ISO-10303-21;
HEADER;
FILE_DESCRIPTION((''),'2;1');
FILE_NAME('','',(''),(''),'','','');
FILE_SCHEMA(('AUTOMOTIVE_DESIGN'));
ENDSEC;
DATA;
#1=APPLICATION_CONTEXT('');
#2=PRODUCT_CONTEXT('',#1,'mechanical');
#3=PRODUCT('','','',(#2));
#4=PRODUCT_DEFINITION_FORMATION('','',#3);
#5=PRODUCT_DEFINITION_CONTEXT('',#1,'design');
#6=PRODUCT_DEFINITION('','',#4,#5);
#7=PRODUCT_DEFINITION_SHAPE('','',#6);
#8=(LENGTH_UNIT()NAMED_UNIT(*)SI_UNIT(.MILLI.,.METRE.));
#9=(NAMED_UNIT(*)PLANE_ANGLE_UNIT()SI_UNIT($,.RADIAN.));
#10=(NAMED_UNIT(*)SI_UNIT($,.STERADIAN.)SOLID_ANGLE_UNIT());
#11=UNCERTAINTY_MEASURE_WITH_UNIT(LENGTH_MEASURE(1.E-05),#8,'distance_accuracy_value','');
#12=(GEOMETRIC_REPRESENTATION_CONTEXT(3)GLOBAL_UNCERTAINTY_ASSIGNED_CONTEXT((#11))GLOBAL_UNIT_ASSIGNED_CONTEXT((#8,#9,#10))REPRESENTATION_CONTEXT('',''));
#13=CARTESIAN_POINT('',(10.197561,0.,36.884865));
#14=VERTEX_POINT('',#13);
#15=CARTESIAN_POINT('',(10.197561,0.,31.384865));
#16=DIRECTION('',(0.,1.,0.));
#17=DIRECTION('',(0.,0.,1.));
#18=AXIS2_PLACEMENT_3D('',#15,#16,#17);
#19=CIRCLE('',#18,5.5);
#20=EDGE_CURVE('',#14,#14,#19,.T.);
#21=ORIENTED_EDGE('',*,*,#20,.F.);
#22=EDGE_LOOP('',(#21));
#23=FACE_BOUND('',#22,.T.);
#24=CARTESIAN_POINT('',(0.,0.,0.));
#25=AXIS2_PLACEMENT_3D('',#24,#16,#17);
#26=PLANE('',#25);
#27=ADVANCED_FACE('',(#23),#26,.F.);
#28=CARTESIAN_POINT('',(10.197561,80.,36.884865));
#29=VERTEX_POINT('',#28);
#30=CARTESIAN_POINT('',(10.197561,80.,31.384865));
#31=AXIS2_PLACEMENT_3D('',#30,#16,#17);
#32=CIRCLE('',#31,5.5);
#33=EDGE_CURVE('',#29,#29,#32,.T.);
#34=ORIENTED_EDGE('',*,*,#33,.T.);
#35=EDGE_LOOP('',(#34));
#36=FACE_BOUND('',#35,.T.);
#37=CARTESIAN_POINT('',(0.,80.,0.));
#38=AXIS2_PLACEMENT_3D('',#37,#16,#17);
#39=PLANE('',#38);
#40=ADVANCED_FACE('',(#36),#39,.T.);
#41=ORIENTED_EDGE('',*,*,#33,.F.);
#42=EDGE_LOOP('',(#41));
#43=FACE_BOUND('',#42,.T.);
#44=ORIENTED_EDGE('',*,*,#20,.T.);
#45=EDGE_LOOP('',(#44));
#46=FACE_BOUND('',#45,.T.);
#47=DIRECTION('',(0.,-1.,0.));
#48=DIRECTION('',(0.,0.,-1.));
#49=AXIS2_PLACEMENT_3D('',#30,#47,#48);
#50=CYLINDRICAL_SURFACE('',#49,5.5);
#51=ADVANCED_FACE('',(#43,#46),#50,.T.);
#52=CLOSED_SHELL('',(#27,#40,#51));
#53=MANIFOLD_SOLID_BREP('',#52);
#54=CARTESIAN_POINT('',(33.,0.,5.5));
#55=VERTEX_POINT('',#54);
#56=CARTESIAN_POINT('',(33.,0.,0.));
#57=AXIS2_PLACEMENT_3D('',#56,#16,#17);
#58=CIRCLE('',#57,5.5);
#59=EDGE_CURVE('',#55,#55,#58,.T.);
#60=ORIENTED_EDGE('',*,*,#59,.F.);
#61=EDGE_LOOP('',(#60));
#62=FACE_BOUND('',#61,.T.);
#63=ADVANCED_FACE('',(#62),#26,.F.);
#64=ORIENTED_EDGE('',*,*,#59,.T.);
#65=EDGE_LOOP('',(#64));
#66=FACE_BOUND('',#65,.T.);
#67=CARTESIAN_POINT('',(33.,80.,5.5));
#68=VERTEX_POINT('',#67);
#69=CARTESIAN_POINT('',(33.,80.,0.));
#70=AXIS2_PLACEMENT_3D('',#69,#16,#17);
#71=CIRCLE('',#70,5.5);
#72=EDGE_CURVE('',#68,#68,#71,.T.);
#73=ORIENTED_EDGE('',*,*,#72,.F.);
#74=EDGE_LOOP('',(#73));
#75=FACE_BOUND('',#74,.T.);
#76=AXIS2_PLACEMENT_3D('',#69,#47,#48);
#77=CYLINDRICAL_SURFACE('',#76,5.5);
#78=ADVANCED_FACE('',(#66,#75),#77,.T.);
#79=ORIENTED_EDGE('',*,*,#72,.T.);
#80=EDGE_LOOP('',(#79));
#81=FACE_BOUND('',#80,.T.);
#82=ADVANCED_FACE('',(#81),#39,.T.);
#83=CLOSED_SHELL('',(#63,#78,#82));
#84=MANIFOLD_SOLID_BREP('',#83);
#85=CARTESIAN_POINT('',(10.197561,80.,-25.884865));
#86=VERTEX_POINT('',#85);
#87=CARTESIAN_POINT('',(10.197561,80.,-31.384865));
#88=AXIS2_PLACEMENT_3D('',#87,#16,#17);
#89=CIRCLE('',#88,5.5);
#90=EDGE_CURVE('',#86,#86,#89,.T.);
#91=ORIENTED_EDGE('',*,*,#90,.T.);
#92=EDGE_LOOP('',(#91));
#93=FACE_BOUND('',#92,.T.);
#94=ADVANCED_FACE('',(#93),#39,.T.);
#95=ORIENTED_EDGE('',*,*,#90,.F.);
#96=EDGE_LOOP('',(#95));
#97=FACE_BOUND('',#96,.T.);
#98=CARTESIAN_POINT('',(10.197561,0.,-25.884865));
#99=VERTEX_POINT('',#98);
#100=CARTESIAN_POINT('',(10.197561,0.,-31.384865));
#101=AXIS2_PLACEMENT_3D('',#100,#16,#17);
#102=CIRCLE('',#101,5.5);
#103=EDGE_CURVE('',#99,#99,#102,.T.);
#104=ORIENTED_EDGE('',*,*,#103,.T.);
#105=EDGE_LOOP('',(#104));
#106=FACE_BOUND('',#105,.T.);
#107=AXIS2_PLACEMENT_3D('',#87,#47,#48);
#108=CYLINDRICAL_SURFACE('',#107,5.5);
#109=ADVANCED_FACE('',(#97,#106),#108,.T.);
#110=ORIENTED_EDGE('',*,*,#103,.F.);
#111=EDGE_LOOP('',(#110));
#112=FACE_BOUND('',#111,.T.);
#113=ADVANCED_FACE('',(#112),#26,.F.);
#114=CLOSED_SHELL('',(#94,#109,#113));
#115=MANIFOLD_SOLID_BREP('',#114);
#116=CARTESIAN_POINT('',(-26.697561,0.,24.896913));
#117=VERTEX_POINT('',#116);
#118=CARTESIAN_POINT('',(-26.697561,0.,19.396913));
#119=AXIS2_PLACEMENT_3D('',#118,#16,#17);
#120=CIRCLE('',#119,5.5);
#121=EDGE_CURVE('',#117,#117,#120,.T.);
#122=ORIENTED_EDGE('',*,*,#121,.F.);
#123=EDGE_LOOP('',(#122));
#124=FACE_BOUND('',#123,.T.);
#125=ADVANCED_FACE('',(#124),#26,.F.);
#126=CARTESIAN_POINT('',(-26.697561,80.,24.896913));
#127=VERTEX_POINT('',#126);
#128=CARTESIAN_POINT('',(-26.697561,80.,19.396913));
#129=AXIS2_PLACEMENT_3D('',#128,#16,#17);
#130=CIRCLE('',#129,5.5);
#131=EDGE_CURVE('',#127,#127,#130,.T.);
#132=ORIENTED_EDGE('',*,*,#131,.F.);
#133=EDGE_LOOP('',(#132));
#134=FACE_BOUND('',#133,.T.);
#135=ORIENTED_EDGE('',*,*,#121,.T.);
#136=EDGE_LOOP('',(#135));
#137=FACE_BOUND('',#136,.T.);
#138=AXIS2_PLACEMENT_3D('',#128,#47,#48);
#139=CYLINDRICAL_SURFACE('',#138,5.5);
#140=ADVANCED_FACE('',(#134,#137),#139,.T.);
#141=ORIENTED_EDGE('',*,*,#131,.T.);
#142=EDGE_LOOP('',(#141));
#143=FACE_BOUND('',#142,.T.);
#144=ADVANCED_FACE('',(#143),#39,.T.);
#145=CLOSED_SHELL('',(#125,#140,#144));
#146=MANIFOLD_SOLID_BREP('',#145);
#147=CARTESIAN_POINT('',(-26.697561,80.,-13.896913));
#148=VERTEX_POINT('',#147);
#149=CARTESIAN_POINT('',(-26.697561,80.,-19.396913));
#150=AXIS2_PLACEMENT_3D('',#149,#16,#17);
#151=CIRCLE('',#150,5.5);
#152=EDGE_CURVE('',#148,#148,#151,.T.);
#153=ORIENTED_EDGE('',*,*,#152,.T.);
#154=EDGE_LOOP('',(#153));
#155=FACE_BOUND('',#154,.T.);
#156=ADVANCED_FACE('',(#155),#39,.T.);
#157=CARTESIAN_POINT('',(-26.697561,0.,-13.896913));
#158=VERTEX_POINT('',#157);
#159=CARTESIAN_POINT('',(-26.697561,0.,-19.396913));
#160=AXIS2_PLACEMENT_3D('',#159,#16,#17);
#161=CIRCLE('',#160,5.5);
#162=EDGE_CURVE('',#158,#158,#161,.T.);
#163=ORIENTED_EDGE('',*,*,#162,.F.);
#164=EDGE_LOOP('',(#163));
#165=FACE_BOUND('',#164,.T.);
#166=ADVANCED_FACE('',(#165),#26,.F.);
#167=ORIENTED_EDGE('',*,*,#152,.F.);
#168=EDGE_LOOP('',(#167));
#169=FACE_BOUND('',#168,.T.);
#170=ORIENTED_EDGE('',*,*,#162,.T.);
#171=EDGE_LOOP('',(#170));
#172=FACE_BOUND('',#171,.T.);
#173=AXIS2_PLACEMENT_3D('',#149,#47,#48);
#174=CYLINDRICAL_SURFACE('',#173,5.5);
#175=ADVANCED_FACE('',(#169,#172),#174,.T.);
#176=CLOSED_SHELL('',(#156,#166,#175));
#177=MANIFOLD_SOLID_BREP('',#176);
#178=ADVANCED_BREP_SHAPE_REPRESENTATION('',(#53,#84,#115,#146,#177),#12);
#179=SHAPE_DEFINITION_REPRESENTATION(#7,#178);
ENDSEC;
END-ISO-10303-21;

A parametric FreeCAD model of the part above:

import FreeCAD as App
import Part
import Sketcher

doc = App.newDocument("Part")
body = doc.addObject("PartDesign::Body", "Body")

sketch1 = body.newObject("Sketcher::SketchObject", "Sketch")
sketch1.AttachmentSupport = (doc.getObject("XZ_Plane"), [""])
sketch1.MapMode = "FlatFace"
sketch1.addGeometry(Part.Circle(App.Vector(33, 0, 0), App.Vector(0, 0, 1), 6), False)
sketch1.addConstraint(Sketcher.Constraint("PointOnObject", 0, 3, -1))
sketch1.addConstraint(Sketcher.Constraint("Diameter", 0, 11.0))
sketch1.addConstraint(Sketcher.Constraint("DistanceX", -1, 1, 0, 3, 33.0))
pad1 = body.newObject("PartDesign::Pad", "Pad")
pad1.Profile = sketch1
pad1.Length = 80
pad1.Reversed = True
body2 = doc.addObject("PartDesign::Body", "Body001")

sketch2 = body2.newObject("Sketcher::SketchObject", "Sketch001")
sketch2.AttachmentSupport = (doc.getObject("XZ_Plane001"), [""])
sketch2.MapMode = "FlatFace"
sketch2.addGeometry(Part.Circle(App.Vector(10, 31, 0), App.Vector(0, 0, 1), 6), False)
sketch2.addConstraint(Sketcher.Constraint("Diameter", 0, 11.0))
sketch2.addConstraint(Sketcher.Constraint("DistanceX", -1, 1, 0, 3, 10.197561))
sketch2.addConstraint(Sketcher.Constraint("DistanceY", -1, 1, 0, 3, 31.384865))
pad2 = body2.newObject("PartDesign::Pad", "Pad001")
pad2.Profile = sketch2
pad2.Length = 80
pad2.Reversed = True
body3 = doc.addObject("PartDesign::Body", "Body002")

sketch3 = body3.newObject("Sketcher::SketchObject", "Sketch002")
sketch3.AttachmentSupport = (doc.getObject("XZ_Plane002"), [""])
sketch3.MapMode = "FlatFace"
sketch3.addGeometry(Part.Circle(App.Vector(-27, 19, 0), App.Vector(0, 0, 1), 6), False)
sketch3.addConstraint(Sketcher.Constraint("Diameter", 0, 11.0))
sketch3.addConstraint(Sketcher.Constraint("DistanceX", 0, 3, -1, 1, 26.697561))
sketch3.addConstraint(Sketcher.Constraint("DistanceY", -1, 1, 0, 3, 19.396913))
pad3 = body3.newObject("PartDesign::Pad", "Pad002")
pad3.Profile = sketch3
pad3.Length = 80
pad3.Reversed = True
body4 = doc.addObject("PartDesign::Body", "Body003")

sketch4 = body4.newObject("Sketcher::SketchObject", "Sketch003")
sketch4.AttachmentSupport = (doc.getObject("XZ_Plane003"), [""])
sketch4.MapMode = "FlatFace"
sketch4.addGeometry(Part.Circle(App.Vector(-27, -19, 0), App.Vector(0, 0, 1), 6), False)
sketch4.addConstraint(Sketcher.Constraint("Diameter", 0, 11.0))
sketch4.addConstraint(Sketcher.Constraint("DistanceX", 0, 3, -1, 1, 26.697561))
sketch4.addConstraint(Sketcher.Constraint("DistanceY", 0, 3, -1, 1, 19.396913))
pad4 = body4.newObject("PartDesign::Pad", "Pad003")
pad4.Profile = sketch4
pad4.Length = 80
pad4.Reversed = True
body5 = doc.addObject("PartDesign::Body", "Body004")

sketch5 = body5.newObject("Sketcher::SketchObject", "Sketch004")
sketch5.AttachmentSupport = (doc.getObject("XZ_Plane004"), [""])
sketch5.MapMode = "FlatFace"
sketch5.addGeometry(Part.Circle(App.Vector(10, -31, 0), App.Vector(0, 0, 1), 6), False)
sketch5.addConstraint(Sketcher.Constraint("Diameter", 0, 11.0))
sketch5.addConstraint(Sketcher.Constraint("DistanceX", -1, 1, 0, 3, 10.197561))
sketch5.addConstraint(Sketcher.Constraint("DistanceY", 0, 3, -1, 1, 31.384865))
pad5 = body5.newObject("PartDesign::Pad", "Pad004")
pad5.Profile = sketch5
pad5.Length = 80
pad5.Reversed = True

doc.recompute()
